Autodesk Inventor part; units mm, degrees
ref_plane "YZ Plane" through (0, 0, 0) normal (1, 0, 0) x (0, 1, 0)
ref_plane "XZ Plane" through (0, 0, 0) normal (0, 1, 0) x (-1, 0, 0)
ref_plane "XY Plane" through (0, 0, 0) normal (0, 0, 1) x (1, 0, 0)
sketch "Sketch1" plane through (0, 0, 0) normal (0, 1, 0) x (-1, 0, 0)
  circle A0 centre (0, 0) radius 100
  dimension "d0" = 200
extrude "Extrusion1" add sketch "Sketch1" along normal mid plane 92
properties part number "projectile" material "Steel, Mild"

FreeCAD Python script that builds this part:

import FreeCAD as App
import Part
import Sketcher

doc = App.newDocument("Part")
body = doc.addObject("PartDesign::Body", "Body")

# Sketch on XZ plane
sketch1 = body.newObject("Sketcher::SketchObject", "Sketch")
sketch1.AttachmentSupport = (doc.getObject("XZ_Plane"), [""])
sketch1.MapMode = "FlatFace"
sketch1.addGeometry(Part.Circle(App.Vector(0, 0, 0), App.Vector(0, 0, 1), 100), False)
sketch1.addConstraint(Sketcher.Constraint("Coincident", 0, 3, -1, 1))
sketch1.addConstraint(Sketcher.Constraint("Diameter", 0, 200.0))
pad1 = body.newObject("PartDesign::Pad", "Pad")
pad1.Profile = sketch1
pad1.Length = 92
pad1.Midplane = True

doc.recompute()
